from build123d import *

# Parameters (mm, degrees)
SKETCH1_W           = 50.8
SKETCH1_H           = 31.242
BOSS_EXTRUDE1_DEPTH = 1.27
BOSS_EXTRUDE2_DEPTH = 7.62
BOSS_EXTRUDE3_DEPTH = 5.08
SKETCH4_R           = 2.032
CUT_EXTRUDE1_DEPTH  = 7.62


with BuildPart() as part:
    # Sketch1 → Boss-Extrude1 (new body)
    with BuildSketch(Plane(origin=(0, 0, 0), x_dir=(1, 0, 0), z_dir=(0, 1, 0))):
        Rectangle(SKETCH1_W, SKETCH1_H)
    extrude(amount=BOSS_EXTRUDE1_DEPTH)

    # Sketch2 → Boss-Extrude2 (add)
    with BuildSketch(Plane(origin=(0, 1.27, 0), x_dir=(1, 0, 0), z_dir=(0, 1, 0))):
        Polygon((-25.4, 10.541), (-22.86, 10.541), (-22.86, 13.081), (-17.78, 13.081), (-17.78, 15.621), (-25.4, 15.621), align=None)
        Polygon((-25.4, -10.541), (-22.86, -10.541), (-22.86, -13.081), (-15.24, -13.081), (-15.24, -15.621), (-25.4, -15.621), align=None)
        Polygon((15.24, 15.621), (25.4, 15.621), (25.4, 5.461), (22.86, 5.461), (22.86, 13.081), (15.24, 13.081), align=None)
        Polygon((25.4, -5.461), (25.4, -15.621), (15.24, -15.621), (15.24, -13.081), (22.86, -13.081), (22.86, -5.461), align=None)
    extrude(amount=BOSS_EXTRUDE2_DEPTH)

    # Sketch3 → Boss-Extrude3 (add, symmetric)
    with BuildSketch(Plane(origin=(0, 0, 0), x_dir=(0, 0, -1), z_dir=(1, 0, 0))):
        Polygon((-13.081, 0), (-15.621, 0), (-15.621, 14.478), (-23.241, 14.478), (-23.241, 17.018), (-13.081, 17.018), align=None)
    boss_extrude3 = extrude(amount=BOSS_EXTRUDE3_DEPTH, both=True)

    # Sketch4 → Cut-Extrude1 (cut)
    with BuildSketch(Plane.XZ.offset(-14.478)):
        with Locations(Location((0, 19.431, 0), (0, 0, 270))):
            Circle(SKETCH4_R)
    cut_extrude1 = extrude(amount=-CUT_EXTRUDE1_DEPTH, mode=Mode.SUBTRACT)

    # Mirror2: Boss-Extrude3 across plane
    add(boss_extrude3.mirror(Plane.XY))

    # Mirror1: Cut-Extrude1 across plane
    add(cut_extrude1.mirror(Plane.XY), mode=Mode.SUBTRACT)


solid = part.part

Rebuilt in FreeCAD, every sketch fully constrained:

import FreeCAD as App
import Part
import Sketcher
from FreeCAD import Vector
Q = App.Units.Quantity


def add_polygon(sketch, points):
    """Adds a closed chain of lines whose ends are joined by coincident constraints."""
    first, n = sketch.GeometryCount, len(points)
    for a, b in zip(points, points[1:] + points[:1]):
        sketch.addGeometry(Part.LineSegment(App.Vector(*a, 0), App.Vector(*b, 0)), False)
    for i in range(n):
        sketch.addConstraint(Sketcher.Constraint("Coincident", first + i, 2, first + (i + 1) % n, 1))

doc = App.newDocument("Part")
body = doc.addObject("PartDesign::Body", "Body")

# Sketch on XZ plane
sketch1 = doc.addObject("Sketcher::SketchObject", "Sketch")
body.addObject(sketch1)
sketch1.AttachmentSupport = (doc.XZ_Plane, [""])
sketch1.MapMode = "FlatFace"
add_polygon(sketch1, [(-25.4, -15.621), (-25.4, 15.621), (25.4, 15.621), (25.4, -15.621)])  # lines 0-3
sketch1.addConstraint([
    Sketcher.Constraint("Vertical", 0),
    Sketcher.Constraint("Horizontal", 1),
    Sketcher.Constraint("Vertical", 2),
    Sketcher.Constraint("Horizontal", 3),
    Sketcher.Constraint("Symmetric", 0, 2, 2, 2, -1, 1),
    Sketcher.Constraint("DistanceX", 1, 1, 1, 2, Q("2 in")),
    Sketcher.Constraint("DistanceY", 0, 1, 0, 2, Q("1.23 in")),
])
pad1 = doc.addObject("PartDesign::Pad", "Pad")
body.addObject(pad1)
pad1.Profile = sketch1
pad1.Length = Q("0.05 in")
pad1.Reversed = True

# Sketch on XZ plane
sketch2 = doc.addObject("Sketcher::SketchObject", "Sketch001")
body.addObject(sketch2)
sketch2.AttachmentSupport = (doc.XZ_Plane, [""])
sketch2.MapMode = "FlatFace"
sketch2.AttachmentOffset = App.Placement(Vector(0, 0, -0.05 * 25.4), App.Rotation())
add_polygon(sketch2, [(-25.4, -10.541), (-22.86, -10.541), (-22.86, -13.081), (-17.78, -13.081), (-17.78, -15.621), (-25.4, -15.621)])  # lines 0-5
add_polygon(sketch2, [(-22.86, 10.541), (-25.4, 10.541), (-25.4, 15.621), (-15.24, 15.621), (-15.24, 13.081), (-22.86, 13.081)])  # lines 6-11
add_polygon(sketch2, [(25.4, -15.621), (15.24, -15.621), (15.24, -13.081), (22.86, -13.081), (22.86, -5.461), (25.4, -5.461)])  # lines 12-17
add_polygon(sketch2, [(25.4, 15.621), (25.4, 5.461), (22.86, 5.461), (22.86, 13.081), (15.24, 13.081), (15.24, 15.621)])  # lines 18-23
sketch2.addConstraint([
    Sketcher.Constraint("Horizontal", 0),
    Sketcher.Constraint("Vertical", 1),
    Sketcher.Constraint("Horizontal", 2),
    Sketcher.Constraint("Vertical", 3),
    Sketcher.Constraint("Horizontal", 4),
    Sketcher.Constraint("Vertical", 5),
    Sketcher.Constraint("Horizontal", 6),
    Sketcher.Constraint("Vertical", 7),
    Sketcher.Constraint("Horizontal", 8),
    Sketcher.Constraint("Vertical", 9),
    Sketcher.Constraint("Horizontal", 10),
    Sketcher.Constraint("Vertical", 11),
    Sketcher.Constraint("Horizontal", 12),
    Sketcher.Constraint("Vertical", 13),
    Sketcher.Constraint("Horizontal", 14),
    Sketcher.Constraint("Vertical", 15),
    Sketcher.Constraint("Horizontal", 16),
    Sketcher.Constraint("Vertical", 17),
    Sketcher.Constraint("Vertical", 18),
    Sketcher.Constraint("Horizontal", 19),
    Sketcher.Constraint("Vertical", 20),
    Sketcher.Constraint("Horizontal", 21),
    Sketcher.Constraint("Vertical", 22),
    Sketcher.Constraint("Horizontal", 23),
    Sketcher.Constraint("Symmetric", 8, 2, 12, 2, -1, 1),
    Sketcher.Constraint("Symmetric", 10, 2, 14, 2, -1, 1),
    Sketcher.Constraint("Symmetric", 1, 2, 20, 2, -1, 1),
    Sketcher.Constraint("Symmetric", 4, 2, 23, 2, -1, 1),
    Sketcher.Constraint("Symmetric", 1, 2, 14, 2, -2),
    Sketcher.Constraint("Symmetric", 4, 2, 17, 2, -2),
    Sketcher.Constraint("Symmetric", 5, 2, 6, 2, -1),
    Sketcher.Constraint("Vertical", 13, 2, 21, 2),
    Sketcher.Constraint("Equal", 4, 10),
    Sketcher.Constraint("Equal", 19, 1),
    Sketcher.Constraint("Equal", 1, 3),
    Sketcher.Constraint("Equal", 2, 5),
    Sketcher.Constraint("Equal", 21, 15),
    Sketcher.Constraint("Equal", 17, 18),
    Sketcher.Constraint("DistanceX", 0, 1, 0, 2, Q("0.1 in")),
    Sketcher.Constraint("DistanceX", 4, 2, -1, 1, Q("1 in")),
    Sketcher.Constraint("DistanceY", 5, 2, 6, 2, Q("0.83 in")),
])
pad2 = doc.addObject("PartDesign::Pad", "Pad001")
body.addObject(pad2)
pad2.Profile = sketch2
pad2.Length = Q("0.3 in")
pad2.Reversed = True

# Sketch on YZ plane
sketch3 = doc.addObject("Sketcher::SketchObject", "Sketch002")
body.addObject(sketch3)
sketch3.AttachmentSupport = (doc.YZ_Plane, [""])
sketch3.MapMode = "FlatFace"
add_polygon(sketch3, [(0, 15.621), (0, 13.081), (17.018, 13.081), (17.018, 23.241), (14.478, 23.241), (14.478, 15.621)])  # lines 0-5
sketch3.addConstraint([
    Sketcher.Constraint("Vertical", 0),
    Sketcher.Constraint("Horizontal", 1),
    Sketcher.Constraint("Vertical", 2),
    Sketcher.Constraint("Horizontal", 3),
    Sketcher.Constraint("Vertical", 4),
    Sketcher.Constraint("Horizontal", 5),
    Sketcher.Constraint("PointOnObject", 0, 2, -2),
    Sketcher.Constraint("Equal", 3, 0),
    Sketcher.Constraint("DistanceX", 3, 2, 3, 1, Q("0.1 in")),
    Sketcher.Constraint("DistanceY", 2, 1, 2, 2, Q("0.4 in")),
    Sketcher.Constraint("DistanceX", 1, 1, 1, 2, Q("0.67 in")),
    Sketcher.Constraint("DistanceY", -1, 1, 0, 2, Q("0.515 in")),
])
pad3 = doc.addObject("PartDesign::Pad", "Pad002")
body.addObject(pad3)
pad3.Profile = sketch3
pad3.Length = Q("0.4 in")
pad3.Midplane = True

# Sketch on XZ plane
sketch4 = doc.addObject("Sketcher::SketchObject", "Sketch003")
body.addObject(sketch4)
sketch4.AttachmentSupport = (doc.XZ_Plane, [""])
sketch4.MapMode = "FlatFace"
sketch4.AttachmentOffset = App.Placement(Vector(0, 0, -0.57 * 25.4), App.Rotation())
sketch4.addGeometry(Part.Circle(Vector(0, 19.431, 0), Vector(0, 0, 1), 2.032), False)
sketch4.addConstraint([
    Sketcher.Constraint("PointOnObject", 0, 3, -2),
    Sketcher.Constraint("Diameter", 0, Q("0.16 in")),
    Sketcher.Constraint("DistanceY", -1, 1, 0, 3, Q("0.765 in")),
])
pocket1 = doc.addObject("PartDesign::Pocket", "Pocket")
body.addObject(pocket1)
pocket1.Profile = sketch4
pocket1.Length = Q("0.3 in")
doc.recompute()

mirrored = doc.addObject("PartDesign::Mirrored", "Mirrored")
body.addObject(mirrored)
mirrored.Originals = [pad3]
mirrored.MirrorPlane = (doc.XY_Plane, [""])
body.Tip = mirrored
doc.recompute()

mirrored2 = doc.addObject("PartDesign::Mirrored", "Mirrored001")
body.addObject(mirrored2)
mirrored2.Originals = [pocket1]
mirrored2.MirrorPlane = (doc.XY_Plane, [""])
body.Tip = mirrored2

doc.recompute()
